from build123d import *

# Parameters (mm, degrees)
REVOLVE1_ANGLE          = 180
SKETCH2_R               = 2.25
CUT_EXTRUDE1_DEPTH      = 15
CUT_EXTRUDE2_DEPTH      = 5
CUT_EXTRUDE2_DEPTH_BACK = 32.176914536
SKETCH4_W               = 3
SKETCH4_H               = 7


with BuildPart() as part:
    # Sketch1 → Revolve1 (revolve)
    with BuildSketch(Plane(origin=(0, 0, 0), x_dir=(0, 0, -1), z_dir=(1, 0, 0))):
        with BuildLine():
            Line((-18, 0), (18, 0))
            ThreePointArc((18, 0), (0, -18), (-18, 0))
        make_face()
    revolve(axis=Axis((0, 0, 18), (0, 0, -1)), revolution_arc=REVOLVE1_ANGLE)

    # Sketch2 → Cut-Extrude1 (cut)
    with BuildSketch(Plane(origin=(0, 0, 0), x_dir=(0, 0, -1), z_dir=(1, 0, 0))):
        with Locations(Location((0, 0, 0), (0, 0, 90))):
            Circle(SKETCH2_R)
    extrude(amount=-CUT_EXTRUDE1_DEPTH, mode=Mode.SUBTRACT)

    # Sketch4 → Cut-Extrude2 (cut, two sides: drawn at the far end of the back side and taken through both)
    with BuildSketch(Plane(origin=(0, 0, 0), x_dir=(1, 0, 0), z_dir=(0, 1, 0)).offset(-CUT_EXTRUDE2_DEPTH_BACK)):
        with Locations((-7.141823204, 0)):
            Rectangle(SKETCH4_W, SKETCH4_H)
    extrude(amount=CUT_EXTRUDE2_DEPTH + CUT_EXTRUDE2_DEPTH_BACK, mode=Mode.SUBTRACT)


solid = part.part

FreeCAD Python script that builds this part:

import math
import FreeCAD as App
import Part
import Sketcher

V = App.Vector


def add_polygon(sketch, points):
    """Adds a closed chain of lines whose ends are joined by coincident constraints."""
    first, n = sketch.GeometryCount, len(points)
    for a, b in zip(points, points[1:] + points[:1]):
        sketch.addGeometry(Part.LineSegment(App.Vector(*a, 0), App.Vector(*b, 0)), False)
    for i in range(n):
        sketch.addConstraint(Sketcher.Constraint("Coincident", first + i, 2, first + (i + 1) % n, 1))

doc = App.newDocument("Part")
body = doc.addObject("PartDesign::Body", "Body")

sketch1 = body.newObject("Sketcher::SketchObject", "Sketch")
sketch1.AttachmentSupport = (doc.getObject("YZ_Plane"), [""])
sketch1.MapMode = "FlatFace"
sketch1.addGeometry(Part.LineSegment(V(0, -18, 0), V(0, 18, 0)), False)
sketch1.addGeometry(Part.ArcOfCircle(Part.Circle(V(0, 0, 0), V(0, 0, 1), 18), math.radians(90), math.radians(270)), False)
sketch1.addConstraint(Sketcher.Constraint("Coincident", 0, 1, 1, 2))
sketch1.addConstraint(Sketcher.Constraint("Coincident", 1, 1, 0, 2))
sketch1.addConstraint(Sketcher.Constraint("Vertical", 0))
sketch1.addConstraint(Sketcher.Constraint("Coincident", 1, 3, -1, 1))
sketch1.addConstraint(Sketcher.Constraint("PointOnObject", 0, 1, -2))
sketch1.addConstraint(Sketcher.Constraint("Radius", 1, 18.0))
revolution = body.newObject("PartDesign::Revolution", "Revolution")
revolution.Profile = sketch1
revolution.ReferenceAxis = (sketch1, ["V_Axis"])
revolution.Angle = 180
revolution.Reversed = True

sketch2 = body.newObject("Sketcher::SketchObject", "Sketch001")
sketch2.AttachmentSupport = (doc.getObject("YZ_Plane"), [""])
sketch2.MapMode = "FlatFace"
sketch2.addGeometry(Part.Circle(V(0, 0, 0), V(0, 0, 1), 2.2), False)
sketch2.addConstraint(Sketcher.Constraint("Coincident", 0, 3, -1, 1))
sketch2.addConstraint(Sketcher.Constraint("Diameter", 0, 4.5))
pocket1 = body.newObject("PartDesign::Pocket", "Pocket")
pocket1.Profile = sketch2
pocket1.Length = 15

sketch3 = body.newObject("Sketcher::SketchObject", "Sketch002")
sketch3.AttachmentSupport = (doc.getObject("XZ_Plane"), [""])
sketch3.MapMode = "FlatFace"
add_polygon(sketch3, [(-8.6, -3.5), (-8.6, 3.5), (-5.6, 3.5), (-5.6, -3.5)])
sketch3.addConstraint(Sketcher.Constraint("Vertical", 0))
sketch3.addConstraint(Sketcher.Constraint("Horizontal", 1))
sketch3.addConstraint(Sketcher.Constraint("Vertical", 2))
sketch3.addConstraint(Sketcher.Constraint("Horizontal", 3))
sketch3.addConstraint(Sketcher.Constraint("DistanceX", 1, 1, 1, 2, 3.0))
sketch3.addConstraint(Sketcher.Constraint("DistanceY", 0, 1, 0, 2, 7.0))
sketch3.addConstraint(Sketcher.Constraint("DistanceY", -1, 1, 0, 2, 3.5))
sketch3.addConstraint(Sketcher.Constraint("DistanceX", 0, 2, -1, 1, 8.641823))
pocket2 = body.newObject("PartDesign::Pocket", "Pocket001")
pocket2.Profile = sketch3
pocket2.Type = "TwoLengths"
pocket2.Length = 5
pocket2.Length2 = 32.176915

doc.recompute()
